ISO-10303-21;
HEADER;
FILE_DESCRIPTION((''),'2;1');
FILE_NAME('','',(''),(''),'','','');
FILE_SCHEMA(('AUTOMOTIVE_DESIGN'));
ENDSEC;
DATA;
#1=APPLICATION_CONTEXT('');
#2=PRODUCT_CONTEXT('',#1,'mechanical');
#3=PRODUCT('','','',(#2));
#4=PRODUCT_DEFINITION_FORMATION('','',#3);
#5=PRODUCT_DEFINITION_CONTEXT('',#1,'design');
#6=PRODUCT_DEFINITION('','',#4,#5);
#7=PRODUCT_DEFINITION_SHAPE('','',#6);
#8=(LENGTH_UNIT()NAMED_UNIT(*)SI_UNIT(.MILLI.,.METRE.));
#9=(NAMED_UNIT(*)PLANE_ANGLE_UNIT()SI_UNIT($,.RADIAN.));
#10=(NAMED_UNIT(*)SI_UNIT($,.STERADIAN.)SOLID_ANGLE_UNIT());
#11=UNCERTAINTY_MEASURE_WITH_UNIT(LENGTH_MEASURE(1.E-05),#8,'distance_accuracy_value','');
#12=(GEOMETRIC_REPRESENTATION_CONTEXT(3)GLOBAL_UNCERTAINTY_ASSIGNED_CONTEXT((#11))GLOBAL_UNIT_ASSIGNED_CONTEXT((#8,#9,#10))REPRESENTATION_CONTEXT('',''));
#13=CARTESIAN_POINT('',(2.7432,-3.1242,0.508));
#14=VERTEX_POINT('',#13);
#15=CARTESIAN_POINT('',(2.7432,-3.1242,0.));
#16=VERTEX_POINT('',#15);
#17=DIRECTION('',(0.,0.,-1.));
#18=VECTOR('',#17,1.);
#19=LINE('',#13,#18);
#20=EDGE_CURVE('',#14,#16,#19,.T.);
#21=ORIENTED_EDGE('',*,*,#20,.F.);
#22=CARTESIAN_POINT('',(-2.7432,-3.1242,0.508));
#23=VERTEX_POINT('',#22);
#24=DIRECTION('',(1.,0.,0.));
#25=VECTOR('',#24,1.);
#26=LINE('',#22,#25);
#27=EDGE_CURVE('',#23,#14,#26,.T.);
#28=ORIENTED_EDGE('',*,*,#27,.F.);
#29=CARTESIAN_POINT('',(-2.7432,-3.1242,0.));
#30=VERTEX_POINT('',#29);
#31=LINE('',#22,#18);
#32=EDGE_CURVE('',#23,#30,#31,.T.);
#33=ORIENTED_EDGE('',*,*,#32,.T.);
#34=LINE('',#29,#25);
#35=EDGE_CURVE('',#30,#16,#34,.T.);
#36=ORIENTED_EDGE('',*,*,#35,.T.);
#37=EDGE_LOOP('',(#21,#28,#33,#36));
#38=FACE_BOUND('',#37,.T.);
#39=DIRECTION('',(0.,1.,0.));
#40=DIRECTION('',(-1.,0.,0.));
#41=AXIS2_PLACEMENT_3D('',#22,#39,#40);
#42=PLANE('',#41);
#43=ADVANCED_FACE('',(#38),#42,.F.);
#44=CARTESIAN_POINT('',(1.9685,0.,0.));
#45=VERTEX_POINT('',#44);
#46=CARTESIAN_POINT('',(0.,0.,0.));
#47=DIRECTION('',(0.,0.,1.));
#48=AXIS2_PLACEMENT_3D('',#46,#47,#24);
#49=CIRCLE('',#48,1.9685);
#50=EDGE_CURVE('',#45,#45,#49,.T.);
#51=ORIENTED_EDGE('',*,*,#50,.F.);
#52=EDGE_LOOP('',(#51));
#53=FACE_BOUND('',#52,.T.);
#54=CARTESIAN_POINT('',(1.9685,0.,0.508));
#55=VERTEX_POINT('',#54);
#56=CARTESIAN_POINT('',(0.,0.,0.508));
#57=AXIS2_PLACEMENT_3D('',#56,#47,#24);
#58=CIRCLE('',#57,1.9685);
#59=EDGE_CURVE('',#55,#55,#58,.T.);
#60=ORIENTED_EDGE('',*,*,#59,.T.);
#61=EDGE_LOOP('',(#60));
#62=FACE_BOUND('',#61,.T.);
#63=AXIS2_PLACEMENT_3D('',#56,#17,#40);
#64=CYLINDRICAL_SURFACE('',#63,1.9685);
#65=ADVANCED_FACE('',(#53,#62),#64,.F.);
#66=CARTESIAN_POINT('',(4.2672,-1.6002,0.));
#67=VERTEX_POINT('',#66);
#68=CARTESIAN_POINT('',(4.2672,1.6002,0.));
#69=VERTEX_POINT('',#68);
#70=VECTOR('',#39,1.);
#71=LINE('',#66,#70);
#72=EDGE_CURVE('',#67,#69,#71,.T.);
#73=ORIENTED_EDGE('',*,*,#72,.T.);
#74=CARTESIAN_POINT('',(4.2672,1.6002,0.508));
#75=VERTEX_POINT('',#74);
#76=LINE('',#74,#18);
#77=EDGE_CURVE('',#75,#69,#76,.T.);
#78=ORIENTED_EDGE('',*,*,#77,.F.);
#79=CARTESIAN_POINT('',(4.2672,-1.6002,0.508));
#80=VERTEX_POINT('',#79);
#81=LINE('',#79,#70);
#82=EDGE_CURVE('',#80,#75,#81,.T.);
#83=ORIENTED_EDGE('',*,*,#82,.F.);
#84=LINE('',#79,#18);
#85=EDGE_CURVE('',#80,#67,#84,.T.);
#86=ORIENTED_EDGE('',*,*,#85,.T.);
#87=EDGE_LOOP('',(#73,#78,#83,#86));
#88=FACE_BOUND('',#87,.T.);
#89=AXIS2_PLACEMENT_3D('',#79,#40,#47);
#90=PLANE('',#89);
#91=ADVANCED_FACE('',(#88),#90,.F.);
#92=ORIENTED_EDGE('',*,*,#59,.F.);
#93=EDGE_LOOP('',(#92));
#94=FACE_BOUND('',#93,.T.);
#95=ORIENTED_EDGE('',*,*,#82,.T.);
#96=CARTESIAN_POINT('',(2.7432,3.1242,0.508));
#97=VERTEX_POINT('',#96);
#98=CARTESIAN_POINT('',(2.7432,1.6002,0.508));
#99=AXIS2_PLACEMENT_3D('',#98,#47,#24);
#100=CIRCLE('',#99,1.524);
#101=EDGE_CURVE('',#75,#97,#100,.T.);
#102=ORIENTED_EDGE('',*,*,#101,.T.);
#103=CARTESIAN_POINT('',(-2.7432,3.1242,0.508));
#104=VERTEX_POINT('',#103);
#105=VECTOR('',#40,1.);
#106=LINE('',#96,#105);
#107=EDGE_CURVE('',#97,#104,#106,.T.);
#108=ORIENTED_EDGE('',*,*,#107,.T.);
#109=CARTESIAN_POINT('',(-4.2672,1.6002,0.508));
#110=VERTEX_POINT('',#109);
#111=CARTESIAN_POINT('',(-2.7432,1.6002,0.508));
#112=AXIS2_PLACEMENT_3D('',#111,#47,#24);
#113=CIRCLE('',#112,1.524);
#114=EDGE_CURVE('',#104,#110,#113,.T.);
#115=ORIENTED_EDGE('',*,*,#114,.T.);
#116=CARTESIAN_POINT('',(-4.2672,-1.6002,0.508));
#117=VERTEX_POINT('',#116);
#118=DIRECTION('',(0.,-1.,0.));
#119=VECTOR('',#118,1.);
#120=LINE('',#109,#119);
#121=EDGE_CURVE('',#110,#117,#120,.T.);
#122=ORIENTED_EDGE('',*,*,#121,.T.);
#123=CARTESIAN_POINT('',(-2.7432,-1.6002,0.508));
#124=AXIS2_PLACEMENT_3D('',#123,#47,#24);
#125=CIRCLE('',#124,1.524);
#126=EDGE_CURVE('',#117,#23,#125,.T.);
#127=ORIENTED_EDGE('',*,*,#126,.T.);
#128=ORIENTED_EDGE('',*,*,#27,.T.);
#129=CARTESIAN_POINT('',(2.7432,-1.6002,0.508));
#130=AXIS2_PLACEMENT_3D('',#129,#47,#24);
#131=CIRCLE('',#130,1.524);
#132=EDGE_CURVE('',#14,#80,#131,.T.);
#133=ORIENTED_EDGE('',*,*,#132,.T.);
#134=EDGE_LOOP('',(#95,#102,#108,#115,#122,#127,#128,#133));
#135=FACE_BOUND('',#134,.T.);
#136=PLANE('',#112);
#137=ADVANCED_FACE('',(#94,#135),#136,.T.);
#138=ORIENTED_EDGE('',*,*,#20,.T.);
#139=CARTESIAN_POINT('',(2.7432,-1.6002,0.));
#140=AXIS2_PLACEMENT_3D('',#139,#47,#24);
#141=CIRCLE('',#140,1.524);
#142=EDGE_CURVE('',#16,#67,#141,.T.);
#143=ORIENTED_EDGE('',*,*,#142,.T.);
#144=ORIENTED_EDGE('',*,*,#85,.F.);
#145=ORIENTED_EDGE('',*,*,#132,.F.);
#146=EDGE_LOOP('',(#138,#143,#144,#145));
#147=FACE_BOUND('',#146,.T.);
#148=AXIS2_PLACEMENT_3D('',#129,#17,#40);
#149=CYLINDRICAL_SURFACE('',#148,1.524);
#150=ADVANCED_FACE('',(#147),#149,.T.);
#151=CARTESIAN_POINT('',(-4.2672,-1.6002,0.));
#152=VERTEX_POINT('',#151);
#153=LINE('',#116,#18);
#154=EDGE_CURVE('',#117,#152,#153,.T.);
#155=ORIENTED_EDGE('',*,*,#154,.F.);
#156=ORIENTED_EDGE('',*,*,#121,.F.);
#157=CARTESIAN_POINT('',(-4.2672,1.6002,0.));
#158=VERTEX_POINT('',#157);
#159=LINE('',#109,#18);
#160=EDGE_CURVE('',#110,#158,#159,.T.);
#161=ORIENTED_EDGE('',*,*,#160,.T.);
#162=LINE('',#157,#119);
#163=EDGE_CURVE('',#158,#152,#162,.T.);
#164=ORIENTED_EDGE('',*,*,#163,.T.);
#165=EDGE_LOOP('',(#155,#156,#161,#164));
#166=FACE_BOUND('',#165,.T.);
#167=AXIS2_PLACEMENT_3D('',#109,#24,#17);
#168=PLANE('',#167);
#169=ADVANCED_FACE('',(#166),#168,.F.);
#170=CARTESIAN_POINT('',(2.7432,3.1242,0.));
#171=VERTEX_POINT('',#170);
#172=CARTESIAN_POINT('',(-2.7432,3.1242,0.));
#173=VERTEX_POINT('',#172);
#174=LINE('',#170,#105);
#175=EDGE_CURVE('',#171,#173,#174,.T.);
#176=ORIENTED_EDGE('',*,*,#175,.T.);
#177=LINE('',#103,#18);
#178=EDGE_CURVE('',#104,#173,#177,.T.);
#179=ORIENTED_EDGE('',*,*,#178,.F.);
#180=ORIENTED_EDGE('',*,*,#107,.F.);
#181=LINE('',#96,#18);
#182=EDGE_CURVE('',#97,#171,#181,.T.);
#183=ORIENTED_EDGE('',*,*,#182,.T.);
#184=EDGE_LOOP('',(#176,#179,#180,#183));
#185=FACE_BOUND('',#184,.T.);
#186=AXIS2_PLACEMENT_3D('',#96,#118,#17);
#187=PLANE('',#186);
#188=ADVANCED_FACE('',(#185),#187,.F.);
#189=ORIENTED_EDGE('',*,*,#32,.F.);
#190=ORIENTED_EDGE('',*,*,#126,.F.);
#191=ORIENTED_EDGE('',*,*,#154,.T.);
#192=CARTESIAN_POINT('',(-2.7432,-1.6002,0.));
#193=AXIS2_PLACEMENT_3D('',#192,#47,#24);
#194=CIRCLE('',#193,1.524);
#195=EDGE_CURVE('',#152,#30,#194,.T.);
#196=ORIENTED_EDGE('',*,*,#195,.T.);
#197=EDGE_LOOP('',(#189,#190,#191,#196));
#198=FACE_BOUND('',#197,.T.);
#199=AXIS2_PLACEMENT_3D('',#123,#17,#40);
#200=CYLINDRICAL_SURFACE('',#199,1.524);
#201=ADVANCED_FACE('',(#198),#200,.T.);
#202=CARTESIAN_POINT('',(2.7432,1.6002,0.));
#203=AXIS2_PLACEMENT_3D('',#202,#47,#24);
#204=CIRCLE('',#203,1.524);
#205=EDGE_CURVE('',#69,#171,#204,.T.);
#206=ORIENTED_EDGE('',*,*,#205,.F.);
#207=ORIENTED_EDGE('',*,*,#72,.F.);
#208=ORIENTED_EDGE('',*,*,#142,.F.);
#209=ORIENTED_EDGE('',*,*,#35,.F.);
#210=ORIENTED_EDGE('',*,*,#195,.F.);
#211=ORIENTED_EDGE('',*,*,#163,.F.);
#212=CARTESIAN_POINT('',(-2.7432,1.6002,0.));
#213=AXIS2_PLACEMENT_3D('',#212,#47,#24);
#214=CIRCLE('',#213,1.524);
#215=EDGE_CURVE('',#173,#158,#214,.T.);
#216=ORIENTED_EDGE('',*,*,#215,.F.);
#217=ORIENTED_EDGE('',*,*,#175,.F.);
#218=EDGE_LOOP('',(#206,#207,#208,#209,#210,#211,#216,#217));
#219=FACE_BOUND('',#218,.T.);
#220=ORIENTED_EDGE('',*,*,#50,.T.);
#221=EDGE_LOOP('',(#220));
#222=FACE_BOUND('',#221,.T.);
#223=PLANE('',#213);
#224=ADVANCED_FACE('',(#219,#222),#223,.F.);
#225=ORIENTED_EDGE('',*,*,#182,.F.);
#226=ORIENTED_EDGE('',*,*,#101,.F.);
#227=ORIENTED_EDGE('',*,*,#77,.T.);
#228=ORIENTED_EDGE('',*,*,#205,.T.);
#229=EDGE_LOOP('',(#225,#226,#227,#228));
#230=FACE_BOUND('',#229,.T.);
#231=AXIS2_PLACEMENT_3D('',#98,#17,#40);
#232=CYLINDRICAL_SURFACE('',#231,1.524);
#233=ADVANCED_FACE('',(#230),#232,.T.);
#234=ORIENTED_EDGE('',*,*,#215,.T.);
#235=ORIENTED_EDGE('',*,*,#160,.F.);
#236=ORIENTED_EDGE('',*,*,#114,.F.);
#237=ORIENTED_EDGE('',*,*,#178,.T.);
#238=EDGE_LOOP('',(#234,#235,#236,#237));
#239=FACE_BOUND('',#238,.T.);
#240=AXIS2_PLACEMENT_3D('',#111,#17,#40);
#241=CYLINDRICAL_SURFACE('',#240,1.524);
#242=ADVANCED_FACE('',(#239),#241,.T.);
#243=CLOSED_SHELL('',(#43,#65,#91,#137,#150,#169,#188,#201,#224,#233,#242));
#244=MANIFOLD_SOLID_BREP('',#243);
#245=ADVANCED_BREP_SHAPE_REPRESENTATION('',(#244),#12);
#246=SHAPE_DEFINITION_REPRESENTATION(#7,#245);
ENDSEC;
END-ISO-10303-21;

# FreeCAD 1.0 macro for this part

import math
import FreeCAD as App
import Part
import Sketcher
from FreeCAD import Vector
Q = App.Units.Quantity

doc = App.newDocument("Part")
body = doc.addObject("PartDesign::Body", "Body")

# Sketch on XY plane
sketch1 = body.newObject("Sketcher::SketchObject", "Sketch")
sketch1.AttachmentSupport = (doc.getObject("XY_Plane"), [""])
sketch1.MapMode = "FlatFace"
sketch1.addGeometry(Part.LineSegment(Vector(-4.2672, 1.6002, 0), Vector(-4.2672, -1.6002, 0)), False)
sketch1.addGeometry(Part.ArcOfCircle(Part.Circle(Vector(-2.7432, -1.6002, 0), Vector(0, 0, 1), 1.524), math.radians(180), math.radians(270)), False)
sketch1.addGeometry(Part.LineSegment(Vector(-2.7432, -3.1242, 0), Vector(2.7432, -3.1242, 0)), False)
sketch1.addGeometry(Part.ArcOfCircle(Part.Circle(Vector(2.7432, -1.6002, 0), Vector(0, 0, 1), 1.524), math.radians(-90), math.radians(0)), False)
sketch1.addGeometry(Part.LineSegment(Vector(4.2672, -1.6002, 0), Vector(4.2672, 1.6002, 0)), False)
sketch1.addGeometry(Part.ArcOfCircle(Part.Circle(Vector(2.7432, 1.6002, 0), Vector(0, 0, 1), 1.524), math.radians(0), math.radians(90)), False)
sketch1.addGeometry(Part.LineSegment(Vector(2.7432, 3.1242, 0), Vector(-2.7432, 3.1242, 0)), False)
sketch1.addGeometry(Part.ArcOfCircle(Part.Circle(Vector(-2.7432, 1.6002, 0), Vector(0, 0, 1), 1.524), math.radians(90), math.radians(180)), False)
sketch1.addGeometry(Part.Circle(Vector(0, 0, 0), Vector(0, 0, 1), 1.9685), False)
sketch1.addConstraint(Sketcher.Constraint("Tangent", 0, 2, 1, 1))
sketch1.addConstraint(Sketcher.Constraint("Tangent", 1, 2, 2, 1))
sketch1.addConstraint(Sketcher.Constraint("Tangent", 2, 2, 3, 1))
sketch1.addConstraint(Sketcher.Constraint("Tangent", 3, 2, 4, 1))
sketch1.addConstraint(Sketcher.Constraint("Tangent", 4, 2, 5, 1))
sketch1.addConstraint(Sketcher.Constraint("Tangent", 5, 2, 6, 1))
sketch1.addConstraint(Sketcher.Constraint("Tangent", 6, 2, 7, 1))
sketch1.addConstraint(Sketcher.Constraint("Tangent", 7, 2, 0, 1))
sketch1.addConstraint(Sketcher.Constraint("Vertical", 0))
sketch1.addConstraint(Sketcher.Constraint("Horizontal", 2))
sketch1.addConstraint(Sketcher.Constraint("Vertical", 4))
sketch1.addConstraint(Sketcher.Constraint("Horizontal", 6))
sketch1.addConstraint(Sketcher.Constraint("Coincident", 8, 3, -1, 1))
sketch1.addConstraint(Sketcher.Constraint("Equal", 1, 3))
sketch1.addConstraint(Sketcher.Constraint("Equal", 3, 5))
sketch1.addConstraint(Sketcher.Constraint("Equal", 5, 7))
sketch1.addConstraint(Sketcher.Constraint("Symmetric", 1, 3, 5, 3, -1, 1))
sketch1.addConstraint(Sketcher.Constraint("Radius", 1, Q("0.06 in")))
sketch1.addConstraint(Sketcher.Constraint("Diameter", 8, Q("0.155 in")))
sketch1.addConstraint(Sketcher.Constraint("DistanceX", 2, 1, 2, 2, Q("0.216 in")))
sketch1.addConstraint(Sketcher.Constraint("DistanceY", 0, 2, 0, 1, Q("0.126 in")))
pad1 = body.newObject("PartDesign::Pad", "Pad")
pad1.Profile = sketch1
pad1.Length = Q("0.02 in")

doc.recompute()
